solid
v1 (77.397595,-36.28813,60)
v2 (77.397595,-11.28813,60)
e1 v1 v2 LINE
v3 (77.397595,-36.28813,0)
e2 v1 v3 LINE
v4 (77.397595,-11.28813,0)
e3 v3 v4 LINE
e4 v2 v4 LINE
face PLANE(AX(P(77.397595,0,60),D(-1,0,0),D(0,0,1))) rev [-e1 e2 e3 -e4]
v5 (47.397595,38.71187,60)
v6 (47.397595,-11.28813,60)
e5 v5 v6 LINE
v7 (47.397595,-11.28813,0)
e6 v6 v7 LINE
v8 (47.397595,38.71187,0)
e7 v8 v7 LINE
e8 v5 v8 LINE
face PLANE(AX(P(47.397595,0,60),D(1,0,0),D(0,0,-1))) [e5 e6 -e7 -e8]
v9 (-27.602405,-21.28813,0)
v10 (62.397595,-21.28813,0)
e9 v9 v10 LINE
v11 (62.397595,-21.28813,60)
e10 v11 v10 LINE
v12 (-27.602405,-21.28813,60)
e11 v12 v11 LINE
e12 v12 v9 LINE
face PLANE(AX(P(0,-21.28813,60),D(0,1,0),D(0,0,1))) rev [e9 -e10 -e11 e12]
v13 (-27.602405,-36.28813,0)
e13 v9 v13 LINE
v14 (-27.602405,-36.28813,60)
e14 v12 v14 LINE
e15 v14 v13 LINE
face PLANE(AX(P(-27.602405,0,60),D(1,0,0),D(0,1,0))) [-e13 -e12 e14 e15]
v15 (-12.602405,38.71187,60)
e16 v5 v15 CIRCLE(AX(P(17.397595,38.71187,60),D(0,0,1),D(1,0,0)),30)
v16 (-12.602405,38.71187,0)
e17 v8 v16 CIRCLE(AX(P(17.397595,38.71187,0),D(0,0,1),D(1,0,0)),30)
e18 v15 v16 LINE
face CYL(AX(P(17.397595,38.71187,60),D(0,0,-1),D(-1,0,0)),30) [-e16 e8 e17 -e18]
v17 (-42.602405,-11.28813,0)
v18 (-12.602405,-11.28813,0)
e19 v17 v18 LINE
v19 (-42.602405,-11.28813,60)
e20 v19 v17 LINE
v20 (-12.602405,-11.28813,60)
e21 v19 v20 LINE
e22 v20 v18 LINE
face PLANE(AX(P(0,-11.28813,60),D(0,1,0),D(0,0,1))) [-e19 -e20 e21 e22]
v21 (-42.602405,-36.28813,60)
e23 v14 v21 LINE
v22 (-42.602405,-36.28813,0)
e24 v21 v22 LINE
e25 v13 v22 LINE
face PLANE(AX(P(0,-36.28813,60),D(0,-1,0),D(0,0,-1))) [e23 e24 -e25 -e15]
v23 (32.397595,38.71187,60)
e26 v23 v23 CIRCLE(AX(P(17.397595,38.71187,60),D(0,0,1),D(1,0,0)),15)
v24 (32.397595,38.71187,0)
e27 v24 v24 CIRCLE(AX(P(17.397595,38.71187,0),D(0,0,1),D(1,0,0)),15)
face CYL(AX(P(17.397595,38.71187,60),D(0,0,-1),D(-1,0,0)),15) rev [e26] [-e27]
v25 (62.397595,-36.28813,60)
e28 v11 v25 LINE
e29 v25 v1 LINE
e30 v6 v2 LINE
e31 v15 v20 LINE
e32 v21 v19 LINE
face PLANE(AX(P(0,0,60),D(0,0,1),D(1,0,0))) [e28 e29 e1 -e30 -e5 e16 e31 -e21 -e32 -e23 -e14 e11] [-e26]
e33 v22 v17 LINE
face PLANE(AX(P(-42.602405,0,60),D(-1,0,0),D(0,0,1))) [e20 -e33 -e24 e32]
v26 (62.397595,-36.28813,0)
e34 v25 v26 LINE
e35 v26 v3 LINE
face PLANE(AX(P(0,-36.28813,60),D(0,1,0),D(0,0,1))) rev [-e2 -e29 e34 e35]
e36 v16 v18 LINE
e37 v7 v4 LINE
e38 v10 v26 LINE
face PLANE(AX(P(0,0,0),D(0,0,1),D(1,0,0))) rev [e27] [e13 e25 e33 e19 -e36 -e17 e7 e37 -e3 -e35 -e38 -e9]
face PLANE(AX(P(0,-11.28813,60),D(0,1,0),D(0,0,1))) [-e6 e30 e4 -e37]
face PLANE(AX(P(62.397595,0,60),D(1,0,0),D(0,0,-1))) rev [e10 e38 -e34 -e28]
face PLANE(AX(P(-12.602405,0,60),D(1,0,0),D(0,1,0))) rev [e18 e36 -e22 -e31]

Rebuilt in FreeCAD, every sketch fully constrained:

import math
import FreeCAD as App
import Part
import Sketcher

doc = App.newDocument("Part")
body = doc.addObject("PartDesign::Body", "Body")

sketch1 = body.newObject("Sketcher::SketchObject", "Sketch")
sketch1.AttachmentSupport = (doc.getObject("XY_Plane"), [""])
sketch1.MapMode = "FlatFace"
sketch1.addGeometry(Part.LineSegment(App.Vector(-13, 39, 0), App.Vector(-13, -11, 0)), False)
sketch1.addGeometry(Part.LineSegment(App.Vector(-13, -11, 0), App.Vector(-43, -11, 0)), False)
sketch1.addGeometry(Part.LineSegment(App.Vector(-43, -11, 0), App.Vector(-43, -36, 0)), False)
sketch1.addGeometry(Part.LineSegment(App.Vector(-43, -36, 0), App.Vector(-28, -36, 0)), False)
sketch1.addGeometry(Part.LineSegment(App.Vector(-28, -36, 0), App.Vector(-28, -21, 0)), False)
sketch1.addGeometry(Part.LineSegment(App.Vector(-28, -21, 0), App.Vector(62, -21, 0)), False)
sketch1.addGeometry(Part.LineSegment(App.Vector(62, -21, 0), App.Vector(62, -36, 0)), False)
sketch1.addGeometry(Part.LineSegment(App.Vector(62, -36, 0), App.Vector(77, -36, 0)), False)
sketch1.addGeometry(Part.LineSegment(App.Vector(77, -36, 0), App.Vector(77, -11, 0)), False)
sketch1.addGeometry(Part.LineSegment(App.Vector(77, -11, 0), App.Vector(47, -11, 0)), False)
sketch1.addGeometry(Part.LineSegment(App.Vector(47, -11, 0), App.Vector(47, 39, 0)), False)
sketch1.addGeometry(Part.ArcOfCircle(Part.Circle(App.Vector(17, 39, 0), App.Vector(0, 0, 1), 30), math.radians(0), math.radians(180)), False)
sketch1.addGeometry(Part.Circle(App.Vector(17, 39, 0), App.Vector(0, 0, 1), 15), False)
sketch1.addConstraint(Sketcher.Constraint("Coincident", 0, 2, 1, 1))
sketch1.addConstraint(Sketcher.Constraint("Coincident", 1, 2, 2, 1))
sketch1.addConstraint(Sketcher.Constraint("Coincident", 2, 2, 3, 1))
sketch1.addConstraint(Sketcher.Constraint("Coincident", 3, 2, 4, 1))
sketch1.addConstraint(Sketcher.Constraint("Coincident", 4, 2, 5, 1))
sketch1.addConstraint(Sketcher.Constraint("Coincident", 5, 2, 6, 1))
sketch1.addConstraint(Sketcher.Constraint("Coincident", 6, 2, 7, 1))
sketch1.addConstraint(Sketcher.Constraint("Coincident", 7, 2, 8, 1))
sketch1.addConstraint(Sketcher.Constraint("Coincident", 8, 2, 9, 1))
sketch1.addConstraint(Sketcher.Constraint("Coincident", 9, 2, 10, 1))
sketch1.addConstraint(Sketcher.Constraint("Tangent", 10, 2, 11, 1))
sketch1.addConstraint(Sketcher.Constraint("Tangent", 11, 2, 0, 1))
sketch1.addConstraint(Sketcher.Constraint("Vertical", 0))
sketch1.addConstraint(Sketcher.Constraint("Horizontal", 1))
sketch1.addConstraint(Sketcher.Constraint("Vertical", 2))
sketch1.addConstraint(Sketcher.Constraint("Horizontal", 3))
sketch1.addConstraint(Sketcher.Constraint("Vertical", 4))
sketch1.addConstraint(Sketcher.Constraint("Horizontal", 5))
sketch1.addConstraint(Sketcher.Constraint("Vertical", 6))
sketch1.addConstraint(Sketcher.Constraint("Horizontal", 7))
sketch1.addConstraint(Sketcher.Constraint("Vertical", 8))
sketch1.addConstraint(Sketcher.Constraint("Horizontal", 9))
sketch1.addConstraint(Sketcher.Constraint("Vertical", 10))
sketch1.addConstraint(Sketcher.Constraint("Coincident", 12, 3, 11, 3))
sketch1.addConstraint(Sketcher.Constraint("Horizontal", 3, 2, 6, 2))
sketch1.addConstraint(Sketcher.Constraint("Horizontal", 1, 2, 8, 2))
sketch1.addConstraint(Sketcher.Constraint("Equal", 3, 7))
sketch1.addConstraint(Sketcher.Constraint("Equal", 1, 9))
sketch1.addConstraint(Sketcher.Constraint("Equal", 7, 4))
sketch1.addConstraint(Sketcher.Constraint("Diameter", 12, 30.0))
sketch1.addConstraint(Sketcher.Constraint("Radius", 11, 30.0))
sketch1.addConstraint(Sketcher.Constraint("DistanceX", 1, 2, 1, 1, 30.0))
sketch1.addConstraint(Sketcher.Constraint("DistanceX", 3, 1, 3, 2, 15.0))
sketch1.addConstraint(Sketcher.Constraint("DistanceY", 0, 2, 0, 1, 50.0))
sketch1.addConstraint(Sketcher.Constraint("DistanceY", 2, 2, 2, 1, 25.0))
sketch1.addConstraint(Sketcher.Constraint("DistanceY", -1, 1, 11, 3, 38.71187))
sketch1.addConstraint(Sketcher.Constraint("DistanceX", -1, 1, 11, 3, 17.397595))
pad1 = body.newObject("PartDesign::Pad", "Pad")
pad1.Profile = sketch1
pad1.Length = 60

doc.recompute()
